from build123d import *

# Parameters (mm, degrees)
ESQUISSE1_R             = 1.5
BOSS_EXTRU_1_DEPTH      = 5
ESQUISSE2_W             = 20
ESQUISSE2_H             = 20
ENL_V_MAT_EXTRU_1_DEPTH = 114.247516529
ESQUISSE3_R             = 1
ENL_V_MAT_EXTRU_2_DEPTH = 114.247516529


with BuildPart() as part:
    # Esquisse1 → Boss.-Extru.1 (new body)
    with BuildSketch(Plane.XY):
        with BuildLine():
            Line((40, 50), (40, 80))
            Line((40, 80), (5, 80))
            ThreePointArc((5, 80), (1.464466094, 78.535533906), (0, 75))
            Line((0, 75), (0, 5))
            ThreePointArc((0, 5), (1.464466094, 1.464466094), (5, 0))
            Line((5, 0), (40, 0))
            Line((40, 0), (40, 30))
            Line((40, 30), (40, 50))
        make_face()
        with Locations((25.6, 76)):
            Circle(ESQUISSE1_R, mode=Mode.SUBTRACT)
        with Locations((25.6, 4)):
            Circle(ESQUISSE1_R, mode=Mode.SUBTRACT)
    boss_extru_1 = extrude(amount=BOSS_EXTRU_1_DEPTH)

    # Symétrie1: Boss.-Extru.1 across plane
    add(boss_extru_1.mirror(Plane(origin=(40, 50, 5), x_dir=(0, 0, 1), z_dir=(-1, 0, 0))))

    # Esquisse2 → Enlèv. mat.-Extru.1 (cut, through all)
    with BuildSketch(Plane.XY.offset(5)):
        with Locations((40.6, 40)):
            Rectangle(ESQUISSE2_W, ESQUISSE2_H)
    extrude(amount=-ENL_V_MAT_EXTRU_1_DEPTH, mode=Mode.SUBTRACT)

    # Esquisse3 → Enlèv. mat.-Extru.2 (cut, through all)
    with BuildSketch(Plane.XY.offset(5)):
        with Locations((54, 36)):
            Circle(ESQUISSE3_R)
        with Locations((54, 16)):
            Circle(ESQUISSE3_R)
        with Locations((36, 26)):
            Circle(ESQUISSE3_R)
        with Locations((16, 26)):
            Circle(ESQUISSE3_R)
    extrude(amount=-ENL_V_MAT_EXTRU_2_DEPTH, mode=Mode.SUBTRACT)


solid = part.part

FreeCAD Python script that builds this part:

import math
import FreeCAD as App
import Part
import Sketcher

V = App.Vector

doc = App.newDocument("Part")
body = doc.addObject("PartDesign::Body", "Body")

sketch1 = body.newObject("Sketcher::SketchObject", "Sketch")
sketch1.AttachmentSupport = (doc.getObject("XY_Plane"), [""])
sketch1.MapMode = "FlatFace"
sketch1.addGeometry([
    Part.LineSegment(V(40, 80, 0), V(5, 80, 0)),
    Part.ArcOfCircle(Part.Circle(V(5, 75, 0), V(0, 0, 1), 5), math.radians(90), math.radians(180)),
    Part.LineSegment(V(0, 75, 0), V(0, 5, 0)),
    Part.ArcOfCircle(Part.Circle(V(5, 5, 0), V(0, 0, 1), 5), math.radians(180), math.radians(270)),
    Part.LineSegment(V(5, 0, 0), V(40, 0, 0)),
    Part.LineSegment(V(40, 0, 0), V(40, 80, 0)),
    Part.Circle(V(25.6, 4, 0), V(0, 0, 1), 1.5),
    Part.Circle(V(25.6, 76, 0), V(0, 0, 1), 1.5),
], False)
sketch1.addConstraint([
    Sketcher.Constraint("Tangent", 0, 2, 1, 1),
    Sketcher.Constraint("Tangent", 1, 2, 2, 1),
    Sketcher.Constraint("Tangent", 2, 2, 3, 1),
    Sketcher.Constraint("Tangent", 3, 2, 4, 1),
    Sketcher.Constraint("Coincident", 4, 2, 5, 1),
    Sketcher.Constraint("Coincident", 5, 2, 0, 1),
    Sketcher.Constraint("Horizontal", 0),
    Sketcher.Constraint("Vertical", 2),
    Sketcher.Constraint("Horizontal", 4),
    Sketcher.Constraint("Vertical", 5),
    Sketcher.Constraint("Equal", 1, 3),
    Sketcher.Constraint("Equal", 6, 7),
    Sketcher.Constraint("PointOnObject", 1, 2, -2),
    Sketcher.Constraint("PointOnObject", 3, 2, -1),
    Sketcher.Constraint("Vertical", 6, 3, 7, 3),
    Sketcher.Constraint("Diameter", 6, 3.0),
    Sketcher.Constraint("Radius", 1, 5.0),
    Sketcher.Constraint("DistanceX", 0, 2, 0, 1, 35.0),
    Sketcher.Constraint("DistanceY", 2, 2, 2, 1, 70.0),
    Sketcher.Constraint("DistanceY", -1, 1, 6, 3, 4.0),
    Sketcher.Constraint("DistanceY", -1, 1, 7, 3, 76.0),
    Sketcher.Constraint("DistanceX", -1, 1, 6, 3, 25.6),
])
pad1 = body.newObject("PartDesign::Pad", "Pad")
pad1.Profile = sketch1
pad1.Length = 5
doc.recompute()

datumplane = body.newObject("PartDesign::Plane", "DatumPlane")
datumplane.AttachmentSupport = (doc.getObject("YZ_Plane"), [""])
datumplane.MapMode = "FlatFace"
datumplane.AttachmentOffset = App.Placement(V(0, 0, 40), App.Rotation())
mirrored = body.newObject("PartDesign::Mirrored", "Mirrored")
mirrored.Originals = [pad1]
mirrored.MirrorPlane = (datumplane, [""])
body.Tip = mirrored

sketch2 = body.newObject("Sketcher::SketchObject", "Sketch001")
sketch2.AttachmentSupport = (doc.getObject("XY_Plane"), [""])
sketch2.MapMode = "FlatFace"
sketch2.AttachmentOffset = App.Placement(V(0, 0, 5), App.Rotation())
sketch2.addGeometry([
    Part.LineSegment(V(31, 50, 0), V(31, 30, 0)),
    Part.LineSegment(V(31, 30, 0), V(51, 30, 0)),
    Part.LineSegment(V(51, 30, 0), V(51, 50, 0)),
    Part.LineSegment(V(51, 50, 0), V(31, 50, 0)),
], False)
sketch2.addConstraint([
    Sketcher.Constraint("Coincident", 0, 2, 1, 1),
    Sketcher.Constraint("Coincident", 1, 2, 2, 1),
    Sketcher.Constraint("Coincident", 2, 2, 3, 1),
    Sketcher.Constraint("Coincident", 3, 2, 0, 1),
    Sketcher.Constraint("Vertical", 0),
    Sketcher.Constraint("Horizontal", 1),
    Sketcher.Constraint("Vertical", 2),
    Sketcher.Constraint("Horizontal", 3),
    Sketcher.Constraint("Equal", 3, 0),
    Sketcher.Constraint("DistanceX", 1, 1, 1, 2, 20.0),
    Sketcher.Constraint("DistanceY", -1, 1, 0, 2, 30.0),
    Sketcher.Constraint("DistanceX", -1, 1, 0, 2, 30.6),
])
pocket1 = body.newObject("PartDesign::Pocket", "Pocket")
pocket1.Profile = sketch2
pocket1.Type = "ThroughAll"

sketch3 = body.newObject("Sketcher::SketchObject", "Sketch002")
sketch3.AttachmentSupport = (doc.getObject("XY_Plane"), [""])
sketch3.MapMode = "FlatFace"
sketch3.AttachmentOffset = App.Placement(V(0, 0, 5), App.Rotation())
sketch3.addGeometry([
    Part.Circle(V(54, 36, 0), V(0, 0, 1), 1),
    Part.Circle(V(54, 16, 0), V(0, 0, 1), 1),
    Part.Circle(V(36, 26, 0), V(0, 0, 1), 1),
    Part.Circle(V(16, 26, 0), V(0, 0, 1), 1),
], False)
sketch3.addConstraint([
    Sketcher.Constraint("Equal", 0, 1),
    Sketcher.Constraint("Equal", 1, 2),
    Sketcher.Constraint("Equal", 2, 3),
    Sketcher.Constraint("Horizontal", 2, 3, 3, 3),
    Sketcher.Constraint("Vertical", 0, 3, 1, 3),
    Sketcher.Constraint("Diameter", 0, 2.0),
    Sketcher.Constraint("DistanceX", -1, 1, 0, 3, 54.0),
    Sketcher.Constraint("DistanceY", -1, 1, 0, 3, 36.0),
    Sketcher.Constraint("DistanceY", -1, 1, 1, 3, 16.0),
    Sketcher.Constraint("DistanceX", -1, 1, 2, 3, 36.0),
    Sketcher.Constraint("DistanceY", -1, 1, 2, 3, 26.0),
    Sketcher.Constraint("DistanceX", -1, 1, 3, 3, 16.0),
])
pocket2 = body.newObject("PartDesign::Pocket", "Pocket001")
pocket2.Profile = sketch3
pocket2.Type = "ThroughAll"

doc.recompute()
